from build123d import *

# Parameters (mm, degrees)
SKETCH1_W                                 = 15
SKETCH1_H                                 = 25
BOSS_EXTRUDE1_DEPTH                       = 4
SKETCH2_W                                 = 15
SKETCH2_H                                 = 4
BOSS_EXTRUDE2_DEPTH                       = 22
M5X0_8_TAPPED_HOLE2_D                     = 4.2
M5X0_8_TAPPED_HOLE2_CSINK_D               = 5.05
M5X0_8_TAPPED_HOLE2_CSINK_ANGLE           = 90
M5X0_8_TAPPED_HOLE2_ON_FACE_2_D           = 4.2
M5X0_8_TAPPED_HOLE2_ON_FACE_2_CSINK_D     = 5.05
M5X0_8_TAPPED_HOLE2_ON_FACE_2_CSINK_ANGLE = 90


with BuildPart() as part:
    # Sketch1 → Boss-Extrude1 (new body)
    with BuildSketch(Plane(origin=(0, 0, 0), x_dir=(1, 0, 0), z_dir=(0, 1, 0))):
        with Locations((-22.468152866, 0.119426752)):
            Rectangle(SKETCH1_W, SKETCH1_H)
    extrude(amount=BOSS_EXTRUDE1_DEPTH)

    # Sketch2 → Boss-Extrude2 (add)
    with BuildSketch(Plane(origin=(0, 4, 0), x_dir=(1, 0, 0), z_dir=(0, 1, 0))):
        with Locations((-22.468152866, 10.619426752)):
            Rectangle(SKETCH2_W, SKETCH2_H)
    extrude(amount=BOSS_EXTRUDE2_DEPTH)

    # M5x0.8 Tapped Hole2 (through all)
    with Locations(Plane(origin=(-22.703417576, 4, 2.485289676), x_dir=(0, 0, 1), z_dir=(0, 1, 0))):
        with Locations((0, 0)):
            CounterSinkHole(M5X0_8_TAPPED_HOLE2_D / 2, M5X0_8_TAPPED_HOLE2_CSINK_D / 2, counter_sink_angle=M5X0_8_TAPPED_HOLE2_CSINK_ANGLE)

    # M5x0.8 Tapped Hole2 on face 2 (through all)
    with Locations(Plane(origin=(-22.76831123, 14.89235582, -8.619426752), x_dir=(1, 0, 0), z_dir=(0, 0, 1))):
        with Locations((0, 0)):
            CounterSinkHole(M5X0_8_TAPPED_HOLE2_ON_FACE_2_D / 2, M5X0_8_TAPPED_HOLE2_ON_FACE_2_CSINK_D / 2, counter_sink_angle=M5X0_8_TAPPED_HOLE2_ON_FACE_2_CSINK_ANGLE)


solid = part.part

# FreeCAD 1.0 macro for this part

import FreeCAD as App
import Part
import Sketcher
from FreeCAD import Vector
Q = App.Units.Quantity

doc = App.newDocument("Part")
params = doc.addObject("Spreadsheet::Sheet", "Params")
for row, (alias, value) in enumerate([
    ("sketch1_width", "15 mm"),
    ("sketch1_height", "25 mm"),
    ("pad1_length", "4 mm"),
    ("sketch2_width", "15 mm"),
    ("sketch2_height", "4 mm"),
    ("pad2_length", "22 mm"),
    ("sketch3_diameter", "4.2 mm"),
    ("hole_diameter", "4.2 mm"),
    ("hole_csink_diameter", "5.05 mm"),
    ("sketch4_diameter", "4.2 mm"),
    ("hole2_diameter", "4.2 mm"),
    ("hole2_csink_diameter", "5.05 mm"),
], start=1):
    params.set(f"A{row}", alias)
    params.set(f"B{row}", "=" + value)
    params.setAlias(f"B{row}", alias)

body = doc.addObject("PartDesign::Body", "Body")

# Sketch on XZ plane
sketch1 = doc.addObject("Sketcher::SketchObject", "Sketch")
body.addObject(sketch1)
sketch1.AttachmentSupport = (doc.XZ_Plane, [""])
sketch1.MapMode = "FlatFace"
sketch1.addGeometry([
    Part.LineSegment(Vector(-30, -13, 0), Vector(-30, 12, 0)),
    Part.LineSegment(Vector(-30, 12, 0), Vector(-15, 12, 0)),
    Part.LineSegment(Vector(-15, 12, 0), Vector(-15, -13, 0)),
    Part.LineSegment(Vector(-15, -13, 0), Vector(-30, -13, 0)),
], False)
sketch1.addConstraint([
    Sketcher.Constraint("Coincident", 0, 2, 1, 1),
    Sketcher.Constraint("Coincident", 1, 2, 2, 1),
    Sketcher.Constraint("Coincident", 2, 2, 3, 1),
    Sketcher.Constraint("Coincident", 3, 2, 0, 1),
    Sketcher.Constraint("Vertical", 0),
    Sketcher.Constraint("Horizontal", 1),
    Sketcher.Constraint("Vertical", 2),
    Sketcher.Constraint("Horizontal", 3),
    Sketcher.Constraint("DistanceX", 1, 1, 1, 2, Q("15 mm")),
    Sketcher.Constraint("DistanceY", 0, 1, 0, 2, Q("25 mm")),
    Sketcher.Constraint("DistanceX", 0, 2, -1, 1, Q("29.968153 mm")),
    Sketcher.Constraint("DistanceY", -1, 1, 0, 2, Q("12.380573 mm")),
])
sketch1.setExpression("Constraints[8]", "Params.sketch1_width")
sketch1.setExpression("Constraints[9]", "Params.sketch1_height")
pad1 = doc.addObject("PartDesign::Pad", "Pad")
body.addObject(pad1)
pad1.Profile = sketch1
pad1.setExpression("Length", "Params.pad1_length")
pad1.Reversed = True

# Sketch on XZ plane
sketch2 = doc.addObject("Sketcher::SketchObject", "Sketch001")
body.addObject(sketch2)
sketch2.AttachmentSupport = (doc.XZ_Plane, [""])
sketch2.MapMode = "FlatFace"
sketch2.AttachmentOffset = App.Placement(Vector(0, 0, -4), App.Rotation())
sketch2.addGeometry([
    Part.LineSegment(Vector(-30, -12.6, 0), Vector(-30, -8.6, 0)),
    Part.LineSegment(Vector(-30, -8.6, 0), Vector(-15, -8.6, 0)),
    Part.LineSegment(Vector(-15, -8.6, 0), Vector(-15, -12.6, 0)),
    Part.LineSegment(Vector(-15, -12.6, 0), Vector(-30, -12.6, 0)),
], False)
sketch2.addConstraint([
    Sketcher.Constraint("Coincident", 0, 2, 1, 1),
    Sketcher.Constraint("Coincident", 1, 2, 2, 1),
    Sketcher.Constraint("Coincident", 2, 2, 3, 1),
    Sketcher.Constraint("Coincident", 3, 2, 0, 1),
    Sketcher.Constraint("Vertical", 0),
    Sketcher.Constraint("Horizontal", 1),
    Sketcher.Constraint("Vertical", 2),
    Sketcher.Constraint("Horizontal", 3),
    Sketcher.Constraint("DistanceX", 1, 1, 1, 2, Q("15 mm")),
    Sketcher.Constraint("DistanceY", 0, 1, 0, 2, Q("4 mm")),
    Sketcher.Constraint("DistanceX", 0, 2, -1, 1, Q("29.968153 mm")),
    Sketcher.Constraint("DistanceY", 0, 2, -1, 1, Q("8.619427 mm")),
])
sketch2.setExpression("Constraints[8]", "Params.sketch2_width")
sketch2.setExpression("Constraints[9]", "Params.sketch2_height")
pad2 = doc.addObject("PartDesign::Pad", "Pad001")
body.addObject(pad2)
pad2.Profile = sketch2
pad2.setExpression("Length", "Params.pad2_length")
pad2.Reversed = True

# Sketch on XZ plane
sketch3 = doc.addObject("Sketcher::SketchObject", "Sketch002")
body.addObject(sketch3)
sketch3.AttachmentSupport = (doc.XZ_Plane, [""])
sketch3.MapMode = "FlatFace"
sketch3.AttachmentOffset = App.Placement(Vector(0, 0, -4), App.Rotation())
sketch3.addGeometry(Part.Circle(Vector(-22.7, 2.5, 0), Vector(0, 0, 1), 2.1), False)
sketch3.addConstraint([
    Sketcher.Constraint("Diameter", 0, Q("4.2 mm")),
    Sketcher.Constraint("DistanceY", -1, 1, 0, 3, Q("2.48529 mm")),
    Sketcher.Constraint("DistanceX", 0, 3, -1, 1, Q("22.703418 mm")),
])
sketch3.setExpression("Constraints[0]", "Params.sketch3_diameter")
doc.recompute()
hole = doc.addObject("PartDesign::Hole", "Hole")
body.addObject(hole)
hole.Profile = sketch3
hole.ThreadType = "None"
hole.setExpression("Diameter", "Params.hole_diameter")
hole.DepthType = "ThroughAll"
hole.HoleCutType = "Countersink"
hole.setExpression("HoleCutDiameter", "Params.hole_csink_diameter")
hole.HoleCutCountersinkAngle = 90
hole.Reversed = True

# Sketch on XY plane
sketch4 = doc.addObject("Sketcher::SketchObject", "Sketch003")
body.addObject(sketch4)
sketch4.AttachmentSupport = (doc.XY_Plane, [""])
sketch4.MapMode = "FlatFace"
sketch4.AttachmentOffset = App.Placement(Vector(0, 0, -8.619427), App.Rotation())
sketch4.addGeometry(Part.Circle(Vector(-22.8, 14.9, 0), Vector(0, 0, 1), 2.1), False)
sketch4.addConstraint([
    Sketcher.Constraint("Diameter", 0, Q("4.2 mm")),
    Sketcher.Constraint("DistanceX", 0, 3, -1, 1, Q("22.768311 mm")),
    Sketcher.Constraint("DistanceY", -1, 1, 0, 3, Q("14.892356 mm")),
])
sketch4.setExpression("Constraints[0]", "Params.sketch4_diameter")
doc.recompute()
hole2 = doc.addObject("PartDesign::Hole", "Hole001")
body.addObject(hole2)
hole2.Profile = sketch4
hole2.ThreadType = "None"
hole2.setExpression("Diameter", "Params.hole2_diameter")
hole2.DepthType = "ThroughAll"
hole2.HoleCutType = "Countersink"
hole2.setExpression("HoleCutDiameter", "Params.hole2_csink_diameter")
hole2.HoleCutCountersinkAngle = 90

doc.recompute()
